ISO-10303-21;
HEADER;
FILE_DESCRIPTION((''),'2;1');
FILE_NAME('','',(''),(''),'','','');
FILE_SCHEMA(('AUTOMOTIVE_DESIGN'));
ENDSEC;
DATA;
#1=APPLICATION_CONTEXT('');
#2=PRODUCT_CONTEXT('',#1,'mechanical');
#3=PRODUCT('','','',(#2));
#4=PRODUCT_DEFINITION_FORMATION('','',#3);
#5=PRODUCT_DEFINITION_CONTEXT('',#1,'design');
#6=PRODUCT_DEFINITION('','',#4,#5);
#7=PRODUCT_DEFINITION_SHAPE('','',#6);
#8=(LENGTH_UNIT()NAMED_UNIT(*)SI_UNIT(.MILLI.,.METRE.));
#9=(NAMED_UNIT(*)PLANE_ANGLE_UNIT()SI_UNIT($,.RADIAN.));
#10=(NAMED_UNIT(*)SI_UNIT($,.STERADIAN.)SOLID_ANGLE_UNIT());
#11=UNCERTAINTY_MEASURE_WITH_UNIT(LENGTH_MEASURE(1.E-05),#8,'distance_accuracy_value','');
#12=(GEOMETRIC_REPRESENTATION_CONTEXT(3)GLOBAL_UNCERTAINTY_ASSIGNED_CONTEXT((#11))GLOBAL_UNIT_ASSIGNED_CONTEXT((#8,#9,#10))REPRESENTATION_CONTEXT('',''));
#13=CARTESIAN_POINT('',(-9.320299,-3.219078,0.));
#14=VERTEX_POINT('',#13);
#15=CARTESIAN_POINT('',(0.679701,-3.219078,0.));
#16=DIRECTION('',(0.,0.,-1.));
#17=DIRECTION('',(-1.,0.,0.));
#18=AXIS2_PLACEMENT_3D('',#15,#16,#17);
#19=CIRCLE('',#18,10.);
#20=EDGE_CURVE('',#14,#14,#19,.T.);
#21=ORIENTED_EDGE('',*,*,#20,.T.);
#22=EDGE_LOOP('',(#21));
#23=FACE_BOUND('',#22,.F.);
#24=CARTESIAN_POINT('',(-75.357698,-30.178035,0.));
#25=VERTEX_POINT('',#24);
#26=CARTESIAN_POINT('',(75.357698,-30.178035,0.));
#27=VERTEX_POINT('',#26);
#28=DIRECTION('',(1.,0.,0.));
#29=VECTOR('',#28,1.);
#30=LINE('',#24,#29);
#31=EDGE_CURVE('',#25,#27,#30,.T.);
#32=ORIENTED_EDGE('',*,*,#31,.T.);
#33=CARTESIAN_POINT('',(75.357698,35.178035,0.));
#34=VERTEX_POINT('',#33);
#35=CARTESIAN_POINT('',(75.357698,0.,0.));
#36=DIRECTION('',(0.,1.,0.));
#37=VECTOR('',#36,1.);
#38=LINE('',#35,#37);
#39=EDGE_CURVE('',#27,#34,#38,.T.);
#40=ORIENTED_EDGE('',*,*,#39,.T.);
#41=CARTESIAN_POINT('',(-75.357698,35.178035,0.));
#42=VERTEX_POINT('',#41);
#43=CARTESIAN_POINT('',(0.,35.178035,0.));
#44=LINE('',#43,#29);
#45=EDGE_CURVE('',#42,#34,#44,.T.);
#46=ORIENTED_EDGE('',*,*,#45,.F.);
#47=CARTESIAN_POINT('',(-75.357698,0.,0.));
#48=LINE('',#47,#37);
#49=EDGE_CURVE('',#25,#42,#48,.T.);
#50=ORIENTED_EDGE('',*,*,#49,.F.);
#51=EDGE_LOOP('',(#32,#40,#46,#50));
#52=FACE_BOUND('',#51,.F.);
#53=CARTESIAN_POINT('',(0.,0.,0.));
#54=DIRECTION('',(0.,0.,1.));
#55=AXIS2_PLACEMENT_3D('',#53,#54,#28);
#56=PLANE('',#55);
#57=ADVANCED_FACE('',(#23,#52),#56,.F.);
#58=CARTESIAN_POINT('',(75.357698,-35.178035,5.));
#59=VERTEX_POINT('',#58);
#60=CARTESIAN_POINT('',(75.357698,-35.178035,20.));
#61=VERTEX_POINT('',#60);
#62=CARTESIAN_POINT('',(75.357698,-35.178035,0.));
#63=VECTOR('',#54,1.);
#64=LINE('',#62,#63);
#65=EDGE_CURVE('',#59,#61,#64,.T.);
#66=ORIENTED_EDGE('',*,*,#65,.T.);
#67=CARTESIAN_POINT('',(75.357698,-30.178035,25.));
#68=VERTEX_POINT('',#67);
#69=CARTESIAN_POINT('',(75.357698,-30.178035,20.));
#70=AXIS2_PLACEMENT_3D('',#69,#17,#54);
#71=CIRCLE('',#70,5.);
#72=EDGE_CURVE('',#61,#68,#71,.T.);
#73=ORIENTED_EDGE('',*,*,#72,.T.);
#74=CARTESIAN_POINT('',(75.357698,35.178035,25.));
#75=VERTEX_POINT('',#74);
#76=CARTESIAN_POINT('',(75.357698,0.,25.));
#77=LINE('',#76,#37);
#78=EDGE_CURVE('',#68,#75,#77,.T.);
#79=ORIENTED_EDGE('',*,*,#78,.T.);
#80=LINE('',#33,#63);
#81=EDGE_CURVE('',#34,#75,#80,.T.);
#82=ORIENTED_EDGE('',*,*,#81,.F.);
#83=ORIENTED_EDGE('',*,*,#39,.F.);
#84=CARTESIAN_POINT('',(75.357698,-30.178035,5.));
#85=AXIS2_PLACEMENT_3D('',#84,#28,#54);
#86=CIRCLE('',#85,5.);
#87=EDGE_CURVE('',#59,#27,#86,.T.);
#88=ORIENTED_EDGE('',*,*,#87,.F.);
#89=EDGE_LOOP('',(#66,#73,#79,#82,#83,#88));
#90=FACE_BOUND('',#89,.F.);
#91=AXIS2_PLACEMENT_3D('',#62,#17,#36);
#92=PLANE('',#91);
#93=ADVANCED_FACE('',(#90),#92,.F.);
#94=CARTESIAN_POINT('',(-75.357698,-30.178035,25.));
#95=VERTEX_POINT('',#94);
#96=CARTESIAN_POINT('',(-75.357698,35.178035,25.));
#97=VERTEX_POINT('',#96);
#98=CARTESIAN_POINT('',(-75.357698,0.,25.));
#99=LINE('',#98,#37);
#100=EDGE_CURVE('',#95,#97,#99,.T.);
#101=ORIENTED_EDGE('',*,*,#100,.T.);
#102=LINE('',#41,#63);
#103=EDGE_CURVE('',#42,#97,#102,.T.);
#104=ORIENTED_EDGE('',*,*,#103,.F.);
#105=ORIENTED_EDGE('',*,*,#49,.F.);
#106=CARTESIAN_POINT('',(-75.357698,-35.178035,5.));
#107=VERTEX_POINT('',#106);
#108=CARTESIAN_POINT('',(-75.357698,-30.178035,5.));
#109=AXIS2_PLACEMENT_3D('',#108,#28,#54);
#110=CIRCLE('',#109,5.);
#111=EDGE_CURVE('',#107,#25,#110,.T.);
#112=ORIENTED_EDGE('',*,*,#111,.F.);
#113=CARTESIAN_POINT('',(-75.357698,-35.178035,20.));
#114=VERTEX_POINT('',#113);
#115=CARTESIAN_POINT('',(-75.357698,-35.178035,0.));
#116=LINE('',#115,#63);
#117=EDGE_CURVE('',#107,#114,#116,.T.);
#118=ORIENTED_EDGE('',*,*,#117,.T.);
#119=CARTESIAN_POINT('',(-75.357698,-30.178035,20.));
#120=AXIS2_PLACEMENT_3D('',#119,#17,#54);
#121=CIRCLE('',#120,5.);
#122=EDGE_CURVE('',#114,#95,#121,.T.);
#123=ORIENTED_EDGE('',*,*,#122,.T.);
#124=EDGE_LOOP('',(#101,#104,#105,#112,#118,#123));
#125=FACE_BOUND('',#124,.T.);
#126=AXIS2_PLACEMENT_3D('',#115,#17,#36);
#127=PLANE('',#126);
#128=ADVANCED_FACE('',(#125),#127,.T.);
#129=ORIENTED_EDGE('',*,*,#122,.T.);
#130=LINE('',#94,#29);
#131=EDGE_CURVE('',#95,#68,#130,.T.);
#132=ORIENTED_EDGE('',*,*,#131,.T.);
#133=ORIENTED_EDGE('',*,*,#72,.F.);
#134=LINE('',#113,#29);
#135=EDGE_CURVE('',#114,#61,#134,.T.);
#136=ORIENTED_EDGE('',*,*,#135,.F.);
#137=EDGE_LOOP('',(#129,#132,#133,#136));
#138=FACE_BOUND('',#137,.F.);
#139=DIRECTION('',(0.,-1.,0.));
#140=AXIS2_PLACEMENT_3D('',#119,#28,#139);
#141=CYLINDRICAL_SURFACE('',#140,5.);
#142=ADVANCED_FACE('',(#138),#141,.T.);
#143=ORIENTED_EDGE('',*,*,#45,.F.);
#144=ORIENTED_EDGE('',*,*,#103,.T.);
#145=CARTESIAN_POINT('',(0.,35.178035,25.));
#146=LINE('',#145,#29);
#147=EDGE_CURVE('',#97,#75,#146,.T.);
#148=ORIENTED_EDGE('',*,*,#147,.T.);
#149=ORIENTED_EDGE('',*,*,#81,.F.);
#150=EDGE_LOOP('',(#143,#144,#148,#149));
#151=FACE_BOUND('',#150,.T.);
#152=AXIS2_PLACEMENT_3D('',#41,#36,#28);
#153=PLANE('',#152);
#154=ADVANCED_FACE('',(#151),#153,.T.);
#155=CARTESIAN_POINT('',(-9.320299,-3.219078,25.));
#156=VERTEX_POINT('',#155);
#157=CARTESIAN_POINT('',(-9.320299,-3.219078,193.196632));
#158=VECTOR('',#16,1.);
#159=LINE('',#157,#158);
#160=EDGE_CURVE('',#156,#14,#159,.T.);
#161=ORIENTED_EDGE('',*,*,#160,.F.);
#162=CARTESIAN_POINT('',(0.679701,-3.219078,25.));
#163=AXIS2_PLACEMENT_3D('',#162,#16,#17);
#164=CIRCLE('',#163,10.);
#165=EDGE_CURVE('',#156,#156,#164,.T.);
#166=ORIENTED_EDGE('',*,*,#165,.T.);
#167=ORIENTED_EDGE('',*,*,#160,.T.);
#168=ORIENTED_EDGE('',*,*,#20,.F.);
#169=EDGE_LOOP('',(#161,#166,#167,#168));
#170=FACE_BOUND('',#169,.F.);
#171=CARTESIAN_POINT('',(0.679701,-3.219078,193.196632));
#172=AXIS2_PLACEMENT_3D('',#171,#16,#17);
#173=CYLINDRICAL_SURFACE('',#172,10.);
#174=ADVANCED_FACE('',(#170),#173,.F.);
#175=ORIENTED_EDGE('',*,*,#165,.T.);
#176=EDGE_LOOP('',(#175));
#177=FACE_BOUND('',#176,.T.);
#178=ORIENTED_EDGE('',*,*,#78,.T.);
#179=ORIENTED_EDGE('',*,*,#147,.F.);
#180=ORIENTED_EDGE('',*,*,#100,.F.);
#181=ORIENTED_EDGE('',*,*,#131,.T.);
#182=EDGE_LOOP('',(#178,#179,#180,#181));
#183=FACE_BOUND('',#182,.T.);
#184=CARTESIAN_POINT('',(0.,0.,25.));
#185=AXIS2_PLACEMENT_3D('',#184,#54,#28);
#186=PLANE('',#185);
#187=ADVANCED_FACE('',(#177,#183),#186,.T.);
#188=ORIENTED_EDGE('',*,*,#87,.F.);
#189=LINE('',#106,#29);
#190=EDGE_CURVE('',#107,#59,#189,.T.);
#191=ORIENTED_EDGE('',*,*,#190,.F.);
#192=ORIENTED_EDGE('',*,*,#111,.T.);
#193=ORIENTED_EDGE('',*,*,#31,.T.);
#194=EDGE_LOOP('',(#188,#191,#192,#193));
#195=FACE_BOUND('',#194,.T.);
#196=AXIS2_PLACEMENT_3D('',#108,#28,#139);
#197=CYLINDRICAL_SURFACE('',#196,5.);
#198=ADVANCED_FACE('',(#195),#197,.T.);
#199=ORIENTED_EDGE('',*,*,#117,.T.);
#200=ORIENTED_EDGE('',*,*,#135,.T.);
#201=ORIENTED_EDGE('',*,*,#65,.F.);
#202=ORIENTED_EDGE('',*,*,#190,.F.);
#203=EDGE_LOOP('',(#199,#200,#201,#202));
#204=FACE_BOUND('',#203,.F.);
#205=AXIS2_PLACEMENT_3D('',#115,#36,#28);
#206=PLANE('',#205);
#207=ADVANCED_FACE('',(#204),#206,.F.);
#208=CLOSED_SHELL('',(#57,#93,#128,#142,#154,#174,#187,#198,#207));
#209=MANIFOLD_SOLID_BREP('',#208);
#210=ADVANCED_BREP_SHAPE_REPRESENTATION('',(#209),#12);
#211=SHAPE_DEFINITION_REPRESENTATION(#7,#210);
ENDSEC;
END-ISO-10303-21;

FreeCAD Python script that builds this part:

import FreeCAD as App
import Part
import Sketcher


def edges_at(feature, points):
    """Names of the edges that pass closest to the given points."""
    edges = feature.Shape.Edges
    near = lambda p: min(range(len(edges)), key=lambda i: edges[i].distToShape(Part.Vertex(*p))[0])
    return sorted({f"Edge{near(p) + 1}" for p in points})

doc = App.newDocument("Part")
body = doc.addObject("PartDesign::Body", "Body")

# Sketch on XY plane
sketch1 = body.newObject("Sketcher::SketchObject", "Sketch")
sketch1.AttachmentSupport = (doc.getObject("XY_Plane"), [""])
sketch1.MapMode = "FlatFace"
sketch1.addGeometry([
    Part.LineSegment(App.Vector(-75, 35, 0), App.Vector(-75, -35, 0)),
    Part.LineSegment(App.Vector(-75, -35, 0), App.Vector(75, -35, 0)),
    Part.LineSegment(App.Vector(75, -35, 0), App.Vector(75, 35, 0)),
    Part.LineSegment(App.Vector(75, 35, 0), App.Vector(-75, 35, 0)),
], False)
sketch1.addConstraint([
    Sketcher.Constraint("Coincident", 0, 2, 1, 1),
    Sketcher.Constraint("Coincident", 1, 2, 2, 1),
    Sketcher.Constraint("Coincident", 2, 2, 3, 1),
    Sketcher.Constraint("Coincident", 3, 2, 0, 1),
    Sketcher.Constraint("Vertical", 0),
    Sketcher.Constraint("Horizontal", 1),
    Sketcher.Constraint("Vertical", 2),
    Sketcher.Constraint("Horizontal", 3),
    Sketcher.Constraint("Symmetric", 0, 2, 2, 2, -1, 1),
    Sketcher.Constraint("DistanceY", 0, 2, 0, 1, 70.35607),
    Sketcher.Constraint("DistanceX", 0, 2, -1, 1, 75.357698),
])
pad1 = body.newObject("PartDesign::Pad", "Pad")
pad1.Profile = sketch1
pad1.Length = 25
doc.recompute()

fillet = body.newObject("PartDesign::Fillet", "Fillet")
fillet.Base = (pad1, edges_at(pad1, [(0, -35.178, 25)]))
fillet.Radius = 5
doc.recompute()

fillet2 = body.newObject("PartDesign::Fillet", "Fillet001")
fillet2.Base = (fillet, edges_at(fillet, [(0, -35.178, 0)]))
fillet2.Radius = 5

# Sketch on XY plane
sketch2 = body.newObject("Sketcher::SketchObject", "Sketch001")
sketch2.AttachmentSupport = (doc.getObject("XY_Plane"), [""])
sketch2.MapMode = "FlatFace"
sketch2.AttachmentOffset = App.Placement(App.Vector(0, 0, 25), App.Rotation())
sketch2.addGeometry(Part.Circle(App.Vector(1, -3, 0), App.Vector(0, 0, 1), 10), False)
sketch2.addConstraint([
    Sketcher.Constraint("Diameter", 0, 20.0),
    Sketcher.Constraint("DistanceX", -1, 1, 0, 3, 0.679701),
    Sketcher.Constraint("DistanceY", 0, 3, -1, 1, 3.219078),
])
doc.recompute()
hole = body.newObject("PartDesign::Hole", "Hole")
hole.Profile = sketch2
hole.ThreadType = "None"
hole.Diameter = 20
hole.DepthType = "ThroughAll"

doc.recompute()
